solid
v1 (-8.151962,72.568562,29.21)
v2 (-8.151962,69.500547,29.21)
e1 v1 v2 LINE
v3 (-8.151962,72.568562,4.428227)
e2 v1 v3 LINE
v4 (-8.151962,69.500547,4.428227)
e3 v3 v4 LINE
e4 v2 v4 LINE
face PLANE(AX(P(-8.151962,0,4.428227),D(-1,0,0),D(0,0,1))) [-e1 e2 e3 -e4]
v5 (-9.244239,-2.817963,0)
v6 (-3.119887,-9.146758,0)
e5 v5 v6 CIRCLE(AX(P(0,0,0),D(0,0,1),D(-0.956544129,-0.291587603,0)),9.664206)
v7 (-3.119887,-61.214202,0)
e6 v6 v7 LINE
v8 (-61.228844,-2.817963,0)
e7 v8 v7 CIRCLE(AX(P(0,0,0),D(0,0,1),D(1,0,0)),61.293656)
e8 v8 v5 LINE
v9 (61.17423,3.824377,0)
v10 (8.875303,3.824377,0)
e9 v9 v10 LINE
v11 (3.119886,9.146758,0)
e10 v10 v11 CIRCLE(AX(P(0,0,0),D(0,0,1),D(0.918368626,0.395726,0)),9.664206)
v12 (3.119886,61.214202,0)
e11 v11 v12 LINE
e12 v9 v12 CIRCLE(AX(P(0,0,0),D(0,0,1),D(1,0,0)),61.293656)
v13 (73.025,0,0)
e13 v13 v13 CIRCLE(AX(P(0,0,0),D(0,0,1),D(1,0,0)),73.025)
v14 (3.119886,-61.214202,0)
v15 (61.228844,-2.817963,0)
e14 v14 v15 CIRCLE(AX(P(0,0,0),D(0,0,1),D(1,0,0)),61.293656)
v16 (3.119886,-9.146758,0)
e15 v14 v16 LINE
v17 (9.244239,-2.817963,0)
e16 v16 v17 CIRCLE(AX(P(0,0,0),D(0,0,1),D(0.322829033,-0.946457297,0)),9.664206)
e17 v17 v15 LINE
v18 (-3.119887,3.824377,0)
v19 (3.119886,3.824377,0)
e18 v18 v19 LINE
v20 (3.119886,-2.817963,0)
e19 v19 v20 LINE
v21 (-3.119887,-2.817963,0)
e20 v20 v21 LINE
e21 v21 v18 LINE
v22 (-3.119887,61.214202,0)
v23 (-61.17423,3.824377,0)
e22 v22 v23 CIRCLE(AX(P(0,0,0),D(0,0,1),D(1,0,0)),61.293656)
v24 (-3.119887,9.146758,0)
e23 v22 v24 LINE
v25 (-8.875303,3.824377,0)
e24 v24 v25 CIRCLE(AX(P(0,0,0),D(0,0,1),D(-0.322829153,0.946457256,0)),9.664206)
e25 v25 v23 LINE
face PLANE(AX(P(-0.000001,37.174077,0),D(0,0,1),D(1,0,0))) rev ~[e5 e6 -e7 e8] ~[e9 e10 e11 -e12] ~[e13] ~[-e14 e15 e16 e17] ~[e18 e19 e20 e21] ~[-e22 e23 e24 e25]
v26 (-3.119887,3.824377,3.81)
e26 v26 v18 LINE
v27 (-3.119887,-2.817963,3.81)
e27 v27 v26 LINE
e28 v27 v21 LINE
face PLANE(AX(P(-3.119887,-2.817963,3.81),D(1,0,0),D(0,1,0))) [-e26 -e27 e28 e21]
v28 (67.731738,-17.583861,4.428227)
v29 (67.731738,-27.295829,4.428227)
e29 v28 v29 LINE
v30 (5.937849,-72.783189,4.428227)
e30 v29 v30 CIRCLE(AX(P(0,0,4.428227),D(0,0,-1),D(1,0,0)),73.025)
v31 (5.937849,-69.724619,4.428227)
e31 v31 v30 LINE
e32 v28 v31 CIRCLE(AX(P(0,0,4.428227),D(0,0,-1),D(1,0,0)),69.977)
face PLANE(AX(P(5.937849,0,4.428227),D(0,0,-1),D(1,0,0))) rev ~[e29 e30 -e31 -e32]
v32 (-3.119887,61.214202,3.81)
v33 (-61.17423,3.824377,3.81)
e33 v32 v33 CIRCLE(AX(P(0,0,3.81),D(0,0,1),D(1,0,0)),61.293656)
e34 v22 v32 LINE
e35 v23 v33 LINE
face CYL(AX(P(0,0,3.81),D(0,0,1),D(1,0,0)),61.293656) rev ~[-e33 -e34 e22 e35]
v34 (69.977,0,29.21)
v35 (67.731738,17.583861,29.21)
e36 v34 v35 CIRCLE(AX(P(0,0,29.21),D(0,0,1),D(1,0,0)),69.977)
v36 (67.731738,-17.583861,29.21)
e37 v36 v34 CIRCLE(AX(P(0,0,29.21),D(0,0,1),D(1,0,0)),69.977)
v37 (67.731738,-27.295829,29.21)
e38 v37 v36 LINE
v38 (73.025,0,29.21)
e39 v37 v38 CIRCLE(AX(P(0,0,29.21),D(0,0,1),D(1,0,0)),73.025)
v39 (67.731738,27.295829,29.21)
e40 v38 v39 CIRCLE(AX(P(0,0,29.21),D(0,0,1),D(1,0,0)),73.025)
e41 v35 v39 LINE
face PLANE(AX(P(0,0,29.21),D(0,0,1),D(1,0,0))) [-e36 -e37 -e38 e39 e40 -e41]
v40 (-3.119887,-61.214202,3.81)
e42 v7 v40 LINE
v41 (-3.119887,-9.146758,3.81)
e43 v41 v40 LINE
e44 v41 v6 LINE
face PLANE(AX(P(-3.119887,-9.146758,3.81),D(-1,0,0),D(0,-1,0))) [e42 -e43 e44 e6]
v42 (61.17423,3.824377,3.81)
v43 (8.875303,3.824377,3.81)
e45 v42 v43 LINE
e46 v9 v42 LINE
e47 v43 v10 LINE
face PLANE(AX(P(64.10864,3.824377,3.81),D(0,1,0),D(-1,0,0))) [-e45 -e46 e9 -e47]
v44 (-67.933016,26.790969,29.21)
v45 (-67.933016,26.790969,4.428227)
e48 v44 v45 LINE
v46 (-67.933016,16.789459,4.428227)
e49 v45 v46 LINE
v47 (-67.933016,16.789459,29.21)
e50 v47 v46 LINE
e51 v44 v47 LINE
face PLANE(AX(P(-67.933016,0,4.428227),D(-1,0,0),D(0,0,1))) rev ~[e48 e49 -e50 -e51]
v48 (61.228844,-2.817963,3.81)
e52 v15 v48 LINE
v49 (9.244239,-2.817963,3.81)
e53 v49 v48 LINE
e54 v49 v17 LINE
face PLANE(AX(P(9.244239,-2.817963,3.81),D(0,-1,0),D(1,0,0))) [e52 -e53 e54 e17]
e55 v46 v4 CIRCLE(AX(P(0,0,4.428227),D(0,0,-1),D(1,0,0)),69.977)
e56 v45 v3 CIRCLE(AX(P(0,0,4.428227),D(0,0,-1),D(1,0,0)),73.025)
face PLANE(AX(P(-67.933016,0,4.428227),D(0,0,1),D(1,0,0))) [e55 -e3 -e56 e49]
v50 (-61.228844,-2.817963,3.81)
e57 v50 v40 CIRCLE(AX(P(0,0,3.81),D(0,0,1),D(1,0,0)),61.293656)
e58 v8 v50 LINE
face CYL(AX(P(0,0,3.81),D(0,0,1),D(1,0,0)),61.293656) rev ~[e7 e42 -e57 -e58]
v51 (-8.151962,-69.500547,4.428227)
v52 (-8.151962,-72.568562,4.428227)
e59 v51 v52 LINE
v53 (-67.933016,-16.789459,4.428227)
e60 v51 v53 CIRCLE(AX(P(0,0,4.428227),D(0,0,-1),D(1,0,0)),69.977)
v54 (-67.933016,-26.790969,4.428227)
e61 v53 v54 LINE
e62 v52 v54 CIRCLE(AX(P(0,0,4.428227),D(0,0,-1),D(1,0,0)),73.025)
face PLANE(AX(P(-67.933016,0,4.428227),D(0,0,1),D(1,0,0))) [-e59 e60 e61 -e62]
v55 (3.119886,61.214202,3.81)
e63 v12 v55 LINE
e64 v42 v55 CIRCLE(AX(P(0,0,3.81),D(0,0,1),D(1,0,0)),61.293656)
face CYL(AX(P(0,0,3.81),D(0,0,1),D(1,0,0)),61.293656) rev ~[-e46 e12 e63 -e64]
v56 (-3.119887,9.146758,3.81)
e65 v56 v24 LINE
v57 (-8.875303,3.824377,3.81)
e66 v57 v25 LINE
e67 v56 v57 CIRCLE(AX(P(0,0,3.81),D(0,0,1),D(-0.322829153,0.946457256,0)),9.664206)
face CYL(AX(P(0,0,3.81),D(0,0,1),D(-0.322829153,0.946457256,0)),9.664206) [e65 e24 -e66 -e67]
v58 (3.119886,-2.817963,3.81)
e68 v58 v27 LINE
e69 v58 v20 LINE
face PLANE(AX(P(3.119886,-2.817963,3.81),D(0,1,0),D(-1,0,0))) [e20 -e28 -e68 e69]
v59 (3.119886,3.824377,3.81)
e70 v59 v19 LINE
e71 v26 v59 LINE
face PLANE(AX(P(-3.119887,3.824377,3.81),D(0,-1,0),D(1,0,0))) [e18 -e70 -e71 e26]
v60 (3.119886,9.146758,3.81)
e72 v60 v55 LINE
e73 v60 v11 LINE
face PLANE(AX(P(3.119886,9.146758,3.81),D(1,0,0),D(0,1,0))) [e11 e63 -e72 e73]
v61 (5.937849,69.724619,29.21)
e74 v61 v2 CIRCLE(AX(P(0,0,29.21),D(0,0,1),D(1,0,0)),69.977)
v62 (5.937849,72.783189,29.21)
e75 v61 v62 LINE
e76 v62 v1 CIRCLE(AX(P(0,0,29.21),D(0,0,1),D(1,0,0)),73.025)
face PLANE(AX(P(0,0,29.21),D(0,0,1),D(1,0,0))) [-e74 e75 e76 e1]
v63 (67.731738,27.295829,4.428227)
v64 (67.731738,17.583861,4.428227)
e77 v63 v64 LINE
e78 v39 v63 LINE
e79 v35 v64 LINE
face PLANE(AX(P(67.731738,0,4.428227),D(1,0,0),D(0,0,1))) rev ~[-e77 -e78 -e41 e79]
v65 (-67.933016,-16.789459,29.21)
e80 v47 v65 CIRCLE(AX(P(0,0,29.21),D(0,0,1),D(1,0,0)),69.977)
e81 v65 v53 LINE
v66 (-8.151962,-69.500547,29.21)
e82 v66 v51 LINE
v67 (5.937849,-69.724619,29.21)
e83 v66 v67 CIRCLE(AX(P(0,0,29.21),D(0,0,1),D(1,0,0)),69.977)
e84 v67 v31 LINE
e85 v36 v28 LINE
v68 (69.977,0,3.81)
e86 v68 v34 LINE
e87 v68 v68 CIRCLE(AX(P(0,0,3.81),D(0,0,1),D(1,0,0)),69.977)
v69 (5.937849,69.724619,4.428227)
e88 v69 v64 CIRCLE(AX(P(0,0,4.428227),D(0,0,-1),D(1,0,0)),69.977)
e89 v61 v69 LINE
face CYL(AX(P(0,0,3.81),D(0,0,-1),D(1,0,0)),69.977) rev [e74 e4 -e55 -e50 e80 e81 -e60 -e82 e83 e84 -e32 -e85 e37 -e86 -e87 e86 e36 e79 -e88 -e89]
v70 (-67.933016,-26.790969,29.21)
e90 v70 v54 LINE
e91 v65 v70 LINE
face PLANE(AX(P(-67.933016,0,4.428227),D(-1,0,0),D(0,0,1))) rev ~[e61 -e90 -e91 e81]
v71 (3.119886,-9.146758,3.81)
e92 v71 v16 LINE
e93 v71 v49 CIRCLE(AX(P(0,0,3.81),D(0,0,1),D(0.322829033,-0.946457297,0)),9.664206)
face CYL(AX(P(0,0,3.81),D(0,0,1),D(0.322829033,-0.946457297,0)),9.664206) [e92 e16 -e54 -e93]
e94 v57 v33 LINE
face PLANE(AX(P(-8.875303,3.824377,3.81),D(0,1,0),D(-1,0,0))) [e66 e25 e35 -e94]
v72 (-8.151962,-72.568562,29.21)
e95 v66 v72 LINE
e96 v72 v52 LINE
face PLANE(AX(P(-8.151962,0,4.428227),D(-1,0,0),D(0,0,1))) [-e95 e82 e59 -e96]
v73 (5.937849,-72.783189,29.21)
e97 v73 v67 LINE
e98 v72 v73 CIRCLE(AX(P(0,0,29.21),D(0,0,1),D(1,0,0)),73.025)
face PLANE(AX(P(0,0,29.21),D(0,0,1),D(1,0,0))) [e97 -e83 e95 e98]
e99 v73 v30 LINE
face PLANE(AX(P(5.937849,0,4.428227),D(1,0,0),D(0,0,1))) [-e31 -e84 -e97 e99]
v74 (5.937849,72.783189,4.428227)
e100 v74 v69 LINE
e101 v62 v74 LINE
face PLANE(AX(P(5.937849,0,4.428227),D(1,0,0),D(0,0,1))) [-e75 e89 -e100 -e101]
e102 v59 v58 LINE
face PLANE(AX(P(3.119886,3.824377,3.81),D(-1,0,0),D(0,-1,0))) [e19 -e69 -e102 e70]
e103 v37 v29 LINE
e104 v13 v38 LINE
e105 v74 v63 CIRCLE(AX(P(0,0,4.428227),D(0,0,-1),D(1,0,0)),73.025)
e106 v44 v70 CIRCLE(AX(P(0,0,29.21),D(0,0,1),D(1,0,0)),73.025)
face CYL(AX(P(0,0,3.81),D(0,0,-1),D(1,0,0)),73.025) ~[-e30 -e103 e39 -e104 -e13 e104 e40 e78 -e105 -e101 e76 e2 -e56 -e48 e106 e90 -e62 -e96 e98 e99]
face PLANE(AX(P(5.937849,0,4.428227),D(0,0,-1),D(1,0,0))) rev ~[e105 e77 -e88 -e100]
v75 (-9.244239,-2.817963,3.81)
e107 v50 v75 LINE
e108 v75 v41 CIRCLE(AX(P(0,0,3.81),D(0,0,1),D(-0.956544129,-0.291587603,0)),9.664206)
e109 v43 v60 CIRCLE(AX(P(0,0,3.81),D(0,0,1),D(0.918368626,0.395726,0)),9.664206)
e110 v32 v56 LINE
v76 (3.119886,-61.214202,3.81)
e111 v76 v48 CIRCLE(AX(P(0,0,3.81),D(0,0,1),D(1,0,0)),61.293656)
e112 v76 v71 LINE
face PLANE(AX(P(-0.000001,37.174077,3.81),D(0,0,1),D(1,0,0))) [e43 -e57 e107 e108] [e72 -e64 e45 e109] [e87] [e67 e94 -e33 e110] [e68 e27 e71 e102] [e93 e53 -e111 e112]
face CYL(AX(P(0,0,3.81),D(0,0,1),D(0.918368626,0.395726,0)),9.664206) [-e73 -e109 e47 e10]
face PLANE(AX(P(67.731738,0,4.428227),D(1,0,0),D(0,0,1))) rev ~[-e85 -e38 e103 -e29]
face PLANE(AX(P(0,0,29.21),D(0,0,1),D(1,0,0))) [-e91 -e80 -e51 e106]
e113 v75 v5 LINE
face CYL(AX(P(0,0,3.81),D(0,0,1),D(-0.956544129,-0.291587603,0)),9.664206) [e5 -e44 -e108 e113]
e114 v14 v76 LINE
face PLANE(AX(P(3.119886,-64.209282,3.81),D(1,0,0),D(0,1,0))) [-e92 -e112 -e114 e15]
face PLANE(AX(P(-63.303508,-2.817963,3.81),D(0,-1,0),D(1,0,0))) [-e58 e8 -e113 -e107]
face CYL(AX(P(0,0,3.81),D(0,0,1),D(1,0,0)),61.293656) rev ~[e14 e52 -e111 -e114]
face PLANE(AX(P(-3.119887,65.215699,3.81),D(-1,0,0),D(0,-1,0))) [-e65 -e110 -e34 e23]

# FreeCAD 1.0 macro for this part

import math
import FreeCAD as App
import Part
import Sketcher
Q = App.Units.Quantity


def add_polygon(sketch, points):
    """Adds a closed chain of lines whose ends are joined by coincident constraints."""
    first, n = sketch.GeometryCount, len(points)
    for a, b in zip(points, points[1:] + points[:1]):
        sketch.addGeometry(Part.LineSegment(App.Vector(*a, 0), App.Vector(*b, 0)), False)
    for i in range(n):
        sketch.addConstraint(Sketcher.Constraint("Coincident", first + i, 2, first + (i + 1) % n, 1))

doc = App.newDocument("Part")
body = doc.addObject("PartDesign::Body", "Body")

# Sketch on XY plane
sketch1 = body.newObject("Sketcher::SketchObject", "Sketch")
sketch1.AttachmentSupport = (doc.getObject("XY_Plane"), [""])
sketch1.MapMode = "FlatFace"
sketch1.addGeometry(Part.Circle(App.Vector(0, 0, 0), App.Vector(0, 0, 1), 73), False)
sketch1.addConstraint(Sketcher.Constraint("Coincident", 0, 3, -1, 1))
sketch1.addConstraint(Sketcher.Constraint("Diameter", 0, Q("5.75 in")))
pad1 = body.newObject("PartDesign::Pad", "Pad")
pad1.Profile = sketch1
pad1.Length = Q("0.15 in")

# Sketch on XY plane
sketch2 = body.newObject("Sketcher::SketchObject", "Sketch001")
sketch2.AttachmentSupport = (doc.getObject("XY_Plane"), [""])
sketch2.MapMode = "FlatFace"
sketch2.AttachmentOffset = App.Placement(App.Vector(0, 0, 0.15 * 25.4), App.Rotation())
sketch2.addGeometry(Part.Circle(App.Vector(0, 0, 0), App.Vector(0, 0, 1), 73), False)
sketch2.addGeometry(Part.Circle(App.Vector(0, 0, 0), App.Vector(0, 0, 1), 70), False)
sketch2.addConstraint(Sketcher.Constraint("Coincident", 0, 3, -1, 1))
sketch2.addConstraint(Sketcher.Constraint("Coincident", 1, 3, -1, 1))
sketch2.addConstraint(Sketcher.Constraint("Diameter", 0, Q("5.75 in")))
sketch2.addConstraint(Sketcher.Constraint("Diameter", 1, Q("5.51 in")))
pad2 = body.newObject("PartDesign::Pad", "Pad001")
pad2.Profile = sketch2
pad2.Length = Q("1 in")

# Sketch on XY plane
sketch3 = body.newObject("Sketcher::SketchObject", "Sketch002")
sketch3.AttachmentSupport = (doc.getObject("XY_Plane"), [""])
sketch3.MapMode = "FlatFace"
sketch3.AttachmentOffset = App.Placement(App.Vector(0, 0, 0.15 * 25.4), App.Rotation())
sketch3.addGeometry(Part.Circle(App.Vector(0, 0, 0), App.Vector(0, 0, 1), 61), False)
sketch3.addConstraint(Sketcher.Constraint("Coincident", 0, 3, -1, 1))
sketch3.addConstraint(Sketcher.Constraint("Diameter", 0, Q("122.587312 mm")))
pocket1 = body.newObject("PartDesign::Pocket", "Pocket")
pocket1.Profile = sketch3
pocket1.Length = Q("1 in")

# Sketch on XY plane
sketch4 = body.newObject("Sketcher::SketchObject", "Sketch003")
sketch4.AttachmentSupport = (doc.getObject("XY_Plane"), [""])
sketch4.MapMode = "FlatFace"
sketch4.AttachmentOffset = App.Placement(App.Vector(0, 0, 0.15 * 25.4), App.Rotation())
sketch4.addGeometry(Part.ArcOfCircle(Part.Circle(App.Vector(0, 0, 0), App.Vector(0, 0, 1), 10), math.radians(-71), math.radians(-17)), False)  # 0
sketch4.addGeometry(Part.LineSegment(App.Vector(9, -3, 0), App.Vector(64, -3, 0)), False)  # 1
sketch4.addGeometry(Part.LineSegment(App.Vector(64, -3, 0), App.Vector(64, 4, 0)), False)  # 2
sketch4.addGeometry(Part.LineSegment(App.Vector(64, 4, 0), App.Vector(9, 4, 0)), False)  # 3
sketch4.addGeometry(Part.ArcOfCircle(Part.Circle(App.Vector(0, 0, 0), App.Vector(0, 0, 1), 10), math.radians(23), math.radians(71)), False)  # 4
sketch4.addGeometry(Part.LineSegment(App.Vector(3, 9, 0), App.Vector(3, 65, 0)), False)  # 5
sketch4.addGeometry(Part.LineSegment(App.Vector(3, 65, 0), App.Vector(-3, 65, 0)), False)  # 6
sketch4.addGeometry(Part.LineSegment(App.Vector(-3, 65, 0), App.Vector(-3, 9, 0)), False)  # 7
sketch4.addGeometry(Part.ArcOfCircle(Part.Circle(App.Vector(0, 0, 0), App.Vector(0, 0, 1), 10), math.radians(109), math.radians(157)), False)  # 8
sketch4.addGeometry(Part.LineSegment(App.Vector(-9, 4, 0), App.Vector(-63, 4, 0)), False)  # 9
sketch4.addGeometry(Part.LineSegment(App.Vector(-63, 4, 0), App.Vector(-63, -3, 0)), False)  # 10
sketch4.addGeometry(Part.LineSegment(App.Vector(-63, -3, 0), App.Vector(-9, -3, 0)), False)  # 11
sketch4.addGeometry(Part.ArcOfCircle(Part.Circle(App.Vector(0, 0, 0), App.Vector(0, 0, 1), 10), math.radians(-163), math.radians(-109)), False)  # 12
sketch4.addGeometry(Part.LineSegment(App.Vector(-3, -9, 0), App.Vector(-3, -64, 0)), False)  # 13
sketch4.addGeometry(Part.LineSegment(App.Vector(-3, -64, 0), App.Vector(3, -64, 0)), False)  # 14
sketch4.addGeometry(Part.LineSegment(App.Vector(3, -64, 0), App.Vector(3, -9, 0)), False)  # 15
add_polygon(sketch4, [(3, 4), (3, -3), (-3, -3), (-3, 4)])  # lines 16-19
sketch4.addConstraint(Sketcher.Constraint("Coincident", 0, 2, 1, 1))
sketch4.addConstraint(Sketcher.Constraint("Coincident", 1, 2, 2, 1))
sketch4.addConstraint(Sketcher.Constraint("Coincident", 2, 2, 3, 1))
sketch4.addConstraint(Sketcher.Constraint("Coincident", 3, 2, 4, 1))
sketch4.addConstraint(Sketcher.Constraint("Coincident", 4, 2, 5, 1))
sketch4.addConstraint(Sketcher.Constraint("Coincident", 5, 2, 6, 1))
sketch4.addConstraint(Sketcher.Constraint("Coincident", 6, 2, 7, 1))
sketch4.addConstraint(Sketcher.Constraint("Coincident", 7, 2, 8, 1))
sketch4.addConstraint(Sketcher.Constraint("Coincident", 8, 2, 9, 1))
sketch4.addConstraint(Sketcher.Constraint("Coincident", 9, 2, 10, 1))
sketch4.addConstraint(Sketcher.Constraint("Coincident", 10, 2, 11, 1))
sketch4.addConstraint(Sketcher.Constraint("Coincident", 11, 2, 12, 1))
sketch4.addConstraint(Sketcher.Constraint("Coincident", 12, 2, 13, 1))
sketch4.addConstraint(Sketcher.Constraint("Coincident", 13, 2, 14, 1))
sketch4.addConstraint(Sketcher.Constraint("Coincident", 14, 2, 15, 1))
sketch4.addConstraint(Sketcher.Constraint("Coincident", 15, 2, 0, 1))
sketch4.addConstraint(Sketcher.Constraint("Horizontal", 1))
sketch4.addConstraint(Sketcher.Constraint("Vertical", 2))
sketch4.addConstraint(Sketcher.Constraint("Horizontal", 3))
sketch4.addConstraint(Sketcher.Constraint("Vertical", 5))
sketch4.addConstraint(Sketcher.Constraint("Horizontal", 6))
sketch4.addConstraint(Sketcher.Constraint("Vertical", 7))
sketch4.addConstraint(Sketcher.Constraint("Horizontal", 9))
sketch4.addConstraint(Sketcher.Constraint("Vertical", 10))
sketch4.addConstraint(Sketcher.Constraint("Horizontal", 11))
sketch4.addConstraint(Sketcher.Constraint("Vertical", 13))
sketch4.addConstraint(Sketcher.Constraint("Horizontal", 14))
sketch4.addConstraint(Sketcher.Constraint("Vertical", 15))
sketch4.addConstraint(Sketcher.Constraint("Vertical", 16))
sketch4.addConstraint(Sketcher.Constraint("Horizontal", 17))
sketch4.addConstraint(Sketcher.Constraint("Vertical", 18))
sketch4.addConstraint(Sketcher.Constraint("Horizontal", 19))
sketch4.addConstraint(Sketcher.Constraint("Coincident", 0, 3, -1, 1))
sketch4.addConstraint(Sketcher.Constraint("Coincident", 4, 3, -1, 1))
sketch4.addConstraint(Sketcher.Constraint("Coincident", 8, 3, -1, 1))
sketch4.addConstraint(Sketcher.Constraint("Coincident", 12, 3, -1, 1))
sketch4.addConstraint(Sketcher.Constraint("Equal", 0, 4))
sketch4.addConstraint(Sketcher.Constraint("Equal", 4, 8))
sketch4.addConstraint(Sketcher.Constraint("Equal", 8, 12))
sketch4.addConstraint(Sketcher.Constraint("Horizontal", 4, 2, 7, 2))
sketch4.addConstraint(Sketcher.Constraint("Horizontal", 3, 2, 8, 2))
sketch4.addConstraint(Sketcher.Constraint("Horizontal", 1, 2, 10, 2))
sketch4.addConstraint(Sketcher.Constraint("Horizontal", 12, 2, 15, 2))
sketch4.addConstraint(Sketcher.Constraint("Horizontal", 11, 2, 16, 2))
sketch4.addConstraint(Sketcher.Constraint("Horizontal", 9, 2, 18, 2))
sketch4.addConstraint(Sketcher.Constraint("Vertical", 7, 2, 12, 2))
sketch4.addConstraint(Sketcher.Constraint("Vertical", 15, 2, 16, 2))
sketch4.addConstraint(Sketcher.Constraint("Vertical", 13, 2, 17, 2))
sketch4.addConstraint(Sketcher.Constraint("DistanceX", 1, 1, 1, 2, Q("54.864401 mm")))
sketch4.addConstraint(Sketcher.Constraint("Radius", 0, Q("9.664206 mm")))
sketch4.addConstraint(Sketcher.Constraint("DistanceX", 11, 1, 11, 2, Q("54.059269 mm")))
sketch4.addConstraint(Sketcher.Constraint("DistanceY", 2, 1, 2, 2, Q("6.64234 mm")))
sketch4.addConstraint(Sketcher.Constraint("DistanceY", 5, 1, 5, 2, Q("56.068941 mm")))
sketch4.addConstraint(Sketcher.Constraint("DistanceY", -1, 1, 5, 2, Q("65.215699 mm")))
sketch4.addConstraint(Sketcher.Constraint("DistanceX", 3, 2, 3, 1, Q("55.233337 mm")))
sketch4.addConstraint(Sketcher.Constraint("DistanceY", 13, 2, 13, 1, Q("55.062525 mm")))
pad3 = body.newObject("PartDesign::Pad", "Pad002")
pad3.Profile = sketch4
pad3.Length = Q("0.15 in")
pad3.Reversed = True

# Sketch on XZ plane
sketch5 = body.newObject("Sketcher::SketchObject", "Sketch004")
sketch5.AttachmentSupport = (doc.getObject("XZ_Plane"), [""])
sketch5.MapMode = "FlatFace"
add_polygon(sketch5, [(-68, 34), (-68, 4), (-8, 4), (-8, 34)])  # lines 0-3
add_polygon(sketch5, [(6, 34), (6, 4), (68, 4), (68, 34)])  # lines 4-7
sketch5.addConstraint(Sketcher.Constraint("Vertical", 0))
sketch5.addConstraint(Sketcher.Constraint("Horizontal", 1))
sketch5.addConstraint(Sketcher.Constraint("Vertical", 2))
sketch5.addConstraint(Sketcher.Constraint("Horizontal", 3))
sketch5.addConstraint(Sketcher.Constraint("Vertical", 4))
sketch5.addConstraint(Sketcher.Constraint("Horizontal", 5))
sketch5.addConstraint(Sketcher.Constraint("Vertical", 6))
sketch5.addConstraint(Sketcher.Constraint("Horizontal", 7))
sketch5.addConstraint(Sketcher.Constraint("Horizontal", 1, 2, 4, 2))
sketch5.addConstraint(Sketcher.Constraint("Horizontal", 3, 2, 6, 2))
sketch5.addConstraint(Sketcher.Constraint("DistanceX", 5, 1, 5, 2, Q("61.793889 mm")))
sketch5.addConstraint(Sketcher.Constraint("DistanceY", 0, 2, 0, 1, Q("29.387321 mm")))
sketch5.addConstraint(Sketcher.Constraint("DistanceX", 1, 2, 5, 2, Q("75.883701 mm")))
sketch5.addConstraint(Sketcher.Constraint("DistanceX", 1, 1, 1, 2, Q("59.781053 mm")))
sketch5.addConstraint(Sketcher.Constraint("DistanceX", -1, 1, 4, 2, Q("5.937849 mm")))
sketch5.addConstraint(Sketcher.Constraint("DistanceY", -1, 1, 0, 2, Q("4.428227 mm")))
pocket2 = body.newObject("PartDesign::Pocket", "Pocket001")
pocket2.Profile = sketch5
pocket2.Length = Q("10 in")
pocket2.Midplane = True

doc.recompute()
